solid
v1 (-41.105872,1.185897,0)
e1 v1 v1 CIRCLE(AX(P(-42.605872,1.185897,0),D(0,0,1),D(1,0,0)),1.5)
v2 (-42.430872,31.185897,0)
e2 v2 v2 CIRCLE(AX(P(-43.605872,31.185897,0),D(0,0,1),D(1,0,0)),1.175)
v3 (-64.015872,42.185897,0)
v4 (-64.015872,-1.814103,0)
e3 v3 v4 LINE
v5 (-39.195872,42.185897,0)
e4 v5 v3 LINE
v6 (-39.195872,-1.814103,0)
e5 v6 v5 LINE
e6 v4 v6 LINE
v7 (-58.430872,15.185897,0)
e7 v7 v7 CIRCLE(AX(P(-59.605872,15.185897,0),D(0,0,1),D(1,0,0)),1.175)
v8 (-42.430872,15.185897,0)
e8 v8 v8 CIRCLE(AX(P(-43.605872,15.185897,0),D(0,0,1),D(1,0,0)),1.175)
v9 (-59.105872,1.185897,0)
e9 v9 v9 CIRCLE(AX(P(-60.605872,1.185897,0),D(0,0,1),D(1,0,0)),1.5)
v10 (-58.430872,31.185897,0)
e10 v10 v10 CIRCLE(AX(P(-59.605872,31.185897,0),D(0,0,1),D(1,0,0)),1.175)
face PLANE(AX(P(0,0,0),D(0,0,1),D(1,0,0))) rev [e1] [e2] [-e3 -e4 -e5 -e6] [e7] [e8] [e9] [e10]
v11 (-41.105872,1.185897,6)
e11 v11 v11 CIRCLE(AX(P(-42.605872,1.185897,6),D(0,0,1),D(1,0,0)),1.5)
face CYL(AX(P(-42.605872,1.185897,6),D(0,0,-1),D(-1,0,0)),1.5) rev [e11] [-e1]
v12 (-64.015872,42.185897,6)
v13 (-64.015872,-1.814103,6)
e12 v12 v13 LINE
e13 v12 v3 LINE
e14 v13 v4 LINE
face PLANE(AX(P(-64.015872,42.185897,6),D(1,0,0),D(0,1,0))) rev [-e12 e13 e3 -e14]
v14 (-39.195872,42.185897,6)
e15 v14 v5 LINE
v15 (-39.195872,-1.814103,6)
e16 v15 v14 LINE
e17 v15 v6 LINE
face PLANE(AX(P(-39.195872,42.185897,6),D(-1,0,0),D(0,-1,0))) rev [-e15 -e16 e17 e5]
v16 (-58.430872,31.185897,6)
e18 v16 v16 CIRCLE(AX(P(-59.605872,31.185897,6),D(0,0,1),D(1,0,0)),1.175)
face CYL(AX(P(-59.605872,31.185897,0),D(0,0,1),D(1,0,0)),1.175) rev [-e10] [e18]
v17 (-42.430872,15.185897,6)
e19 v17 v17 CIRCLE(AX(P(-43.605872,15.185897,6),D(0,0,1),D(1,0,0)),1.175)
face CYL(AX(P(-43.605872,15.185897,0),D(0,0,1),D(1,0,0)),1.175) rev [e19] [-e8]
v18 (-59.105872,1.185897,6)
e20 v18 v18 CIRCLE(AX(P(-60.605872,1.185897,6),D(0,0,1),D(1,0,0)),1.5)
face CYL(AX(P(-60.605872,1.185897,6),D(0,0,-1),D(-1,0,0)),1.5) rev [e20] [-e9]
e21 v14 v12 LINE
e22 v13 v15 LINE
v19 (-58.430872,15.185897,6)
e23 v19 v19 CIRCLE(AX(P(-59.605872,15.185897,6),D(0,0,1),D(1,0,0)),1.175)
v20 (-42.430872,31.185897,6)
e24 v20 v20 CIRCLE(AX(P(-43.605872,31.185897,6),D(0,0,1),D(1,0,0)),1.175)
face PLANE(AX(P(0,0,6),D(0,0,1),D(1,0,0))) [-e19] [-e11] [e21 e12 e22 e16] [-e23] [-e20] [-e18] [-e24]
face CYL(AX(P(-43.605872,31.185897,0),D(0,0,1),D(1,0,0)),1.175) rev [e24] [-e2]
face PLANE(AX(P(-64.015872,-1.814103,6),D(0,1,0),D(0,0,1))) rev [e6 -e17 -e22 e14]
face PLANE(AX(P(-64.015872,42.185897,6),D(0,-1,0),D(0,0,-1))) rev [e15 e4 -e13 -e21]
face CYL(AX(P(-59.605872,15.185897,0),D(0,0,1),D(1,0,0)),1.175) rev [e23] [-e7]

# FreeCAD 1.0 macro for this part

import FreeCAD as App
import Part
import Sketcher

doc = App.newDocument("Part")
body = doc.addObject("PartDesign::Body", "Body")

# Sketch on XY plane
sketch1 = body.newObject("Sketcher::SketchObject", "Sketch")
sketch1.AttachmentSupport = (doc.getObject("XY_Plane"), [""])
sketch1.MapMode = "FlatFace"
sketch1.addGeometry([
    Part.LineSegment(App.Vector(-64, 42.2, 0), App.Vector(-64, -1.8, 0)),  # 0
    Part.LineSegment(App.Vector(-64, -1.8, 0), App.Vector(-39.2, -1.8, 0)),  # 1
    Part.LineSegment(App.Vector(-39.2, -1.8, 0), App.Vector(-39.2, 42.2, 0)),  # 2
    Part.LineSegment(App.Vector(-39.2, 42.2, 0), App.Vector(-64, 42.2, 0)),  # 3
    Part.Circle(App.Vector(-60.6, 1.2, 0), App.Vector(0, 0, 1), 1.5),  # 4
    Part.Circle(App.Vector(-42.6, 1.2, 0), App.Vector(0, 0, 1), 1.5),  # 5
], False)
sketch1.addConstraint([
    Sketcher.Constraint("Coincident", 0, 2, 1, 1),
    Sketcher.Constraint("Coincident", 1, 2, 2, 1),
    Sketcher.Constraint("Coincident", 2, 2, 3, 1),
    Sketcher.Constraint("Coincident", 3, 2, 0, 1),
    Sketcher.Constraint("Vertical", 0),
    Sketcher.Constraint("Horizontal", 1),
    Sketcher.Constraint("Vertical", 2),
    Sketcher.Constraint("Horizontal", 3),
    Sketcher.Constraint("Equal", 4, 5),
    Sketcher.Constraint("Horizontal", 4, 3, 5, 3),
    Sketcher.Constraint("Diameter", 4, 3.0),
    Sketcher.Constraint("DistanceY", 0, 2, 0, 1, 44.0),
    Sketcher.Constraint("DistanceX", 4, 3, 5, 3, 18.0),
    Sketcher.Constraint("DistanceY", 0, 2, 4, 3, 3.0),
    Sketcher.Constraint("DistanceX", 1, 1, 1, 2, 24.82),
    Sketcher.Constraint("DistanceX", 0, 2, 4, 3, 3.41),
    Sketcher.Constraint("DistanceX", 4, 3, -1, 1, 60.605872),
    Sketcher.Constraint("DistanceY", -1, 1, 4, 3, 1.185897),
])
pad1 = body.newObject("PartDesign::Pad", "Pad")
pad1.Profile = sketch1
pad1.Length = 6

# Sketch on XY plane
sketch2 = body.newObject("Sketcher::SketchObject", "Sketch001")
sketch2.AttachmentSupport = (doc.getObject("XY_Plane"), [""])
sketch2.MapMode = "FlatFace"
sketch2.AttachmentOffset = App.Placement(App.Vector(0, 0, 6), App.Rotation())
sketch2.addGeometry([
    Part.Circle(App.Vector(-43.6, 31.2, 0), App.Vector(0, 0, 1), 1.2),
    Part.Circle(App.Vector(-59.6, 31.2, 0), App.Vector(0, 0, 1), 1.2),
    Part.Circle(App.Vector(-59.6, 15.2, 0), App.Vector(0, 0, 1), 1.2),
    Part.Circle(App.Vector(-43.6, 15.2, 0), App.Vector(0, 0, 1), 1.2),
], False)
sketch2.addConstraint([
    Sketcher.Constraint("Equal", 0, 1),
    Sketcher.Constraint("Equal", 1, 2),
    Sketcher.Constraint("Equal", 2, 3),
    Sketcher.Constraint("Horizontal", 0, 3, 1, 3),
    Sketcher.Constraint("Horizontal", 2, 3, 3, 3),
    Sketcher.Constraint("Vertical", 1, 3, 2, 3),
    Sketcher.Constraint("Vertical", 0, 3, 3, 3),
    Sketcher.Constraint("Diameter", 0, 2.35),
    Sketcher.Constraint("DistanceX", 1, 3, 0, 3, 16.0),
    Sketcher.Constraint("DistanceY", 2, 3, 1, 3, 16.0),
    Sketcher.Constraint("DistanceX", 0, 3, -1, 1, 43.605872),
    Sketcher.Constraint("DistanceY", -1, 1, 0, 3, 31.185897),
])
pocket1 = body.newObject("PartDesign::Pocket", "Pocket")
pocket1.Profile = sketch2
pocket1.Length = 6

doc.recompute()
